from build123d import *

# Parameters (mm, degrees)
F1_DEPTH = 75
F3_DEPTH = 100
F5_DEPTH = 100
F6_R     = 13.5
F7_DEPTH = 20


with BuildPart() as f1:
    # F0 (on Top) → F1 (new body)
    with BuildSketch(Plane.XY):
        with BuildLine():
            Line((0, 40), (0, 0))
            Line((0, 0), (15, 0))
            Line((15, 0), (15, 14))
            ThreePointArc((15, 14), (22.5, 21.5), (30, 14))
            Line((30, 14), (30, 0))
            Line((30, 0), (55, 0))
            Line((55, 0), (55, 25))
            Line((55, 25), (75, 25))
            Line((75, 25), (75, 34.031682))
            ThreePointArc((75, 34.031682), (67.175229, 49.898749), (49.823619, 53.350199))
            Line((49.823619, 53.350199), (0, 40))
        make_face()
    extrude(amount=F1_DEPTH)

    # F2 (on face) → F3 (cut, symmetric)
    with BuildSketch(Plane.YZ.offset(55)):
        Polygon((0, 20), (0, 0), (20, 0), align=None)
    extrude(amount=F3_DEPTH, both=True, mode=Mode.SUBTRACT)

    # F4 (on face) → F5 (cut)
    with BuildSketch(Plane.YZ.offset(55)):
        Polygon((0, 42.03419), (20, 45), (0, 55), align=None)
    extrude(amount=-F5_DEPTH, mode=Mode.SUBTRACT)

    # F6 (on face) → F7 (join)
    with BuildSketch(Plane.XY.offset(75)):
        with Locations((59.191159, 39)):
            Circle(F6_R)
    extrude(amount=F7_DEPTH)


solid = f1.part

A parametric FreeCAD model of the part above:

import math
import FreeCAD as App
import Part
import Sketcher
from FreeCAD import Vector
Q = App.Units.Quantity

doc = App.newDocument("Part")
body = doc.addObject("PartDesign::Body", "Body")

sketch1 = body.newObject("Sketcher::SketchObject", "Sketch")
sketch1.AttachmentSupport = (doc.getObject("XY_Plane"), [""])
sketch1.MapMode = "FlatFace"
sketch1.addGeometry([
    Part.LineSegment(Vector(0, 40, 0), Vector(0, 0, 0)),
    Part.LineSegment(Vector(0, 0, 0), Vector(15, 0, 0)),
    Part.LineSegment(Vector(15, 0, 0), Vector(15, 14, 0)),
    Part.ArcOfCircle(Part.Circle(Vector(22, 14, 0), Vector(0, 0, 1), 8), math.radians(0), math.radians(180)),
    Part.LineSegment(Vector(30, 14, 0), Vector(30, 0, 0)),
    Part.LineSegment(Vector(30, 0, 0), Vector(55, 0, 0)),
    Part.LineSegment(Vector(55, 0, 0), Vector(55, 25, 0)),
    Part.LineSegment(Vector(55, 25, 0), Vector(75, 25, 0)),
    Part.LineSegment(Vector(75, 25, 0), Vector(75, 34, 0)),
    Part.ArcOfCircle(Part.Circle(Vector(55, 34, 0), Vector(0, 0, 1), 20), math.radians(0), math.radians(105)),
    Part.LineSegment(Vector(50, 53, 0), Vector(0, 40, 0)),
], False)
sketch1.addConstraint([
    Sketcher.Constraint("Coincident", 0, 2, 1, 1),
    Sketcher.Constraint("Coincident", 1, 2, 2, 1),
    Sketcher.Constraint("Tangent", 2, 2, 3, 2),
    Sketcher.Constraint("Tangent", 3, 1, 4, 1),
    Sketcher.Constraint("Coincident", 4, 2, 5, 1),
    Sketcher.Constraint("Coincident", 5, 2, 6, 1),
    Sketcher.Constraint("Coincident", 6, 2, 7, 1),
    Sketcher.Constraint("Coincident", 7, 2, 8, 1),
    Sketcher.Constraint("Tangent", 8, 2, 9, 1),
    Sketcher.Constraint("Tangent", 9, 2, 10, 1),
    Sketcher.Constraint("Coincident", 10, 2, 0, 1),
    Sketcher.Constraint("Vertical", 0),
    Sketcher.Constraint("Horizontal", 1),
    Sketcher.Constraint("Vertical", 2),
    Sketcher.Constraint("Vertical", 4),
    Sketcher.Constraint("Horizontal", 5),
    Sketcher.Constraint("Vertical", 6),
    Sketcher.Constraint("Horizontal", 7),
    Sketcher.Constraint("Vertical", 8),
    Sketcher.Constraint("Coincident", 0, 2, -1, 1),
    Sketcher.Constraint("PointOnObject", 4, 2, -1),
    Sketcher.Constraint("Vertical", 9, 3, 5, 2),
    Sketcher.Constraint("Equal", 5, 6),
    Sketcher.Constraint("Radius", 9, 20.0),
    Sketcher.Constraint("Radius", 3, 7.5),
    Sketcher.Constraint("DistanceX", 1, 1, 1, 2, 15.0),
    Sketcher.Constraint("DistanceX", 5, 1, 5, 2, 25.0),
    Sketcher.Constraint("DistanceY", 0, 2, 0, 1, 40.0),
    Sketcher.Constraint("DistanceY", 2, 1, 2, 2, 14.0),
    Sketcher.Constraint("Angle", 10, Q("-164.999999 deg")),
])
pad1 = body.newObject("PartDesign::Pad", "Pad")
pad1.Profile = sketch1
pad1.Length = 75

sketch2 = body.newObject("Sketcher::SketchObject", "Sketch001")
sketch2.AttachmentSupport = (doc.getObject("YZ_Plane"), [""])
sketch2.MapMode = "FlatFace"
sketch2.AttachmentOffset = App.Placement(Vector(0, 0, 55), App.Rotation())
sketch2.addGeometry([
    Part.LineSegment(Vector(0, 20, 0), Vector(0, 0, 0)),
    Part.LineSegment(Vector(0, 0, 0), Vector(20, 0, 0)),
    Part.LineSegment(Vector(20, 0, 0), Vector(0, 20, 0)),
], False)
sketch2.addConstraint([
    Sketcher.Constraint("Coincident", 0, 2, 1, 1),
    Sketcher.Constraint("Coincident", 1, 2, 2, 1),
    Sketcher.Constraint("Coincident", 2, 2, 0, 1),
    Sketcher.Constraint("Vertical", 0),
    Sketcher.Constraint("Horizontal", 1),
    Sketcher.Constraint("Coincident", 0, 2, -1, 1),
    Sketcher.Constraint("Equal", 1, 0),
    Sketcher.Constraint("DistanceX", 1, 1, 1, 2, 20.0),
])
pocket1 = body.newObject("PartDesign::Pocket", "Pocket")
pocket1.Profile = sketch2
pocket1.Length = 200
pocket1.Midplane = True

sketch3 = body.newObject("Sketcher::SketchObject", "Sketch002")
sketch3.AttachmentSupport = (doc.getObject("YZ_Plane"), [""])
sketch3.MapMode = "FlatFace"
sketch3.AttachmentOffset = App.Placement(Vector(0, 0, 55), App.Rotation())
sketch3.addGeometry([
    Part.LineSegment(Vector(0, 42, 0), Vector(20, 45, 0)),
    Part.LineSegment(Vector(20, 45, 0), Vector(0, 55, 0)),
    Part.LineSegment(Vector(0, 55, 0), Vector(0, 42, 0)),
], False)
sketch3.addConstraint([
    Sketcher.Constraint("Coincident", 0, 2, 1, 1),
    Sketcher.Constraint("Coincident", 1, 2, 2, 1),
    Sketcher.Constraint("Coincident", 2, 2, 0, 1),
    Sketcher.Constraint("Vertical", 2),
    Sketcher.Constraint("PointOnObject", 1, 2, -2),
    Sketcher.Constraint("DistanceX", -1, 1, 0, 2, 20.0),
    Sketcher.Constraint("DistanceY", -1, 1, 0, 2, 45.0),
    Sketcher.Constraint("DistanceY", -1, 1, 1, 2, 55.0),
    Sketcher.Constraint("DistanceY", 2, 2, 2, 1, 12.96581),
])
pocket2 = body.newObject("PartDesign::Pocket", "Pocket001")
pocket2.Profile = sketch3
pocket2.Length = 100

sketch4 = body.newObject("Sketcher::SketchObject", "Sketch003")
sketch4.AttachmentSupport = (doc.getObject("XY_Plane"), [""])
sketch4.MapMode = "FlatFace"
sketch4.AttachmentOffset = App.Placement(Vector(0, 0, 75), App.Rotation())
sketch4.addGeometry(Part.Circle(Vector(59, 39, 0), Vector(0, 0, 1), 14), False)
sketch4.addConstraint([
    Sketcher.Constraint("Diameter", 0, 27.0),
    Sketcher.Constraint("DistanceY", -1, 1, 0, 3, 39.0),
    Sketcher.Constraint("DistanceX", -1, 1, 0, 3, 59.191159),
])
pad2 = body.newObject("PartDesign::Pad", "Pad001")
pad2.Profile = sketch4
pad2.Length = 20

doc.recompute()
